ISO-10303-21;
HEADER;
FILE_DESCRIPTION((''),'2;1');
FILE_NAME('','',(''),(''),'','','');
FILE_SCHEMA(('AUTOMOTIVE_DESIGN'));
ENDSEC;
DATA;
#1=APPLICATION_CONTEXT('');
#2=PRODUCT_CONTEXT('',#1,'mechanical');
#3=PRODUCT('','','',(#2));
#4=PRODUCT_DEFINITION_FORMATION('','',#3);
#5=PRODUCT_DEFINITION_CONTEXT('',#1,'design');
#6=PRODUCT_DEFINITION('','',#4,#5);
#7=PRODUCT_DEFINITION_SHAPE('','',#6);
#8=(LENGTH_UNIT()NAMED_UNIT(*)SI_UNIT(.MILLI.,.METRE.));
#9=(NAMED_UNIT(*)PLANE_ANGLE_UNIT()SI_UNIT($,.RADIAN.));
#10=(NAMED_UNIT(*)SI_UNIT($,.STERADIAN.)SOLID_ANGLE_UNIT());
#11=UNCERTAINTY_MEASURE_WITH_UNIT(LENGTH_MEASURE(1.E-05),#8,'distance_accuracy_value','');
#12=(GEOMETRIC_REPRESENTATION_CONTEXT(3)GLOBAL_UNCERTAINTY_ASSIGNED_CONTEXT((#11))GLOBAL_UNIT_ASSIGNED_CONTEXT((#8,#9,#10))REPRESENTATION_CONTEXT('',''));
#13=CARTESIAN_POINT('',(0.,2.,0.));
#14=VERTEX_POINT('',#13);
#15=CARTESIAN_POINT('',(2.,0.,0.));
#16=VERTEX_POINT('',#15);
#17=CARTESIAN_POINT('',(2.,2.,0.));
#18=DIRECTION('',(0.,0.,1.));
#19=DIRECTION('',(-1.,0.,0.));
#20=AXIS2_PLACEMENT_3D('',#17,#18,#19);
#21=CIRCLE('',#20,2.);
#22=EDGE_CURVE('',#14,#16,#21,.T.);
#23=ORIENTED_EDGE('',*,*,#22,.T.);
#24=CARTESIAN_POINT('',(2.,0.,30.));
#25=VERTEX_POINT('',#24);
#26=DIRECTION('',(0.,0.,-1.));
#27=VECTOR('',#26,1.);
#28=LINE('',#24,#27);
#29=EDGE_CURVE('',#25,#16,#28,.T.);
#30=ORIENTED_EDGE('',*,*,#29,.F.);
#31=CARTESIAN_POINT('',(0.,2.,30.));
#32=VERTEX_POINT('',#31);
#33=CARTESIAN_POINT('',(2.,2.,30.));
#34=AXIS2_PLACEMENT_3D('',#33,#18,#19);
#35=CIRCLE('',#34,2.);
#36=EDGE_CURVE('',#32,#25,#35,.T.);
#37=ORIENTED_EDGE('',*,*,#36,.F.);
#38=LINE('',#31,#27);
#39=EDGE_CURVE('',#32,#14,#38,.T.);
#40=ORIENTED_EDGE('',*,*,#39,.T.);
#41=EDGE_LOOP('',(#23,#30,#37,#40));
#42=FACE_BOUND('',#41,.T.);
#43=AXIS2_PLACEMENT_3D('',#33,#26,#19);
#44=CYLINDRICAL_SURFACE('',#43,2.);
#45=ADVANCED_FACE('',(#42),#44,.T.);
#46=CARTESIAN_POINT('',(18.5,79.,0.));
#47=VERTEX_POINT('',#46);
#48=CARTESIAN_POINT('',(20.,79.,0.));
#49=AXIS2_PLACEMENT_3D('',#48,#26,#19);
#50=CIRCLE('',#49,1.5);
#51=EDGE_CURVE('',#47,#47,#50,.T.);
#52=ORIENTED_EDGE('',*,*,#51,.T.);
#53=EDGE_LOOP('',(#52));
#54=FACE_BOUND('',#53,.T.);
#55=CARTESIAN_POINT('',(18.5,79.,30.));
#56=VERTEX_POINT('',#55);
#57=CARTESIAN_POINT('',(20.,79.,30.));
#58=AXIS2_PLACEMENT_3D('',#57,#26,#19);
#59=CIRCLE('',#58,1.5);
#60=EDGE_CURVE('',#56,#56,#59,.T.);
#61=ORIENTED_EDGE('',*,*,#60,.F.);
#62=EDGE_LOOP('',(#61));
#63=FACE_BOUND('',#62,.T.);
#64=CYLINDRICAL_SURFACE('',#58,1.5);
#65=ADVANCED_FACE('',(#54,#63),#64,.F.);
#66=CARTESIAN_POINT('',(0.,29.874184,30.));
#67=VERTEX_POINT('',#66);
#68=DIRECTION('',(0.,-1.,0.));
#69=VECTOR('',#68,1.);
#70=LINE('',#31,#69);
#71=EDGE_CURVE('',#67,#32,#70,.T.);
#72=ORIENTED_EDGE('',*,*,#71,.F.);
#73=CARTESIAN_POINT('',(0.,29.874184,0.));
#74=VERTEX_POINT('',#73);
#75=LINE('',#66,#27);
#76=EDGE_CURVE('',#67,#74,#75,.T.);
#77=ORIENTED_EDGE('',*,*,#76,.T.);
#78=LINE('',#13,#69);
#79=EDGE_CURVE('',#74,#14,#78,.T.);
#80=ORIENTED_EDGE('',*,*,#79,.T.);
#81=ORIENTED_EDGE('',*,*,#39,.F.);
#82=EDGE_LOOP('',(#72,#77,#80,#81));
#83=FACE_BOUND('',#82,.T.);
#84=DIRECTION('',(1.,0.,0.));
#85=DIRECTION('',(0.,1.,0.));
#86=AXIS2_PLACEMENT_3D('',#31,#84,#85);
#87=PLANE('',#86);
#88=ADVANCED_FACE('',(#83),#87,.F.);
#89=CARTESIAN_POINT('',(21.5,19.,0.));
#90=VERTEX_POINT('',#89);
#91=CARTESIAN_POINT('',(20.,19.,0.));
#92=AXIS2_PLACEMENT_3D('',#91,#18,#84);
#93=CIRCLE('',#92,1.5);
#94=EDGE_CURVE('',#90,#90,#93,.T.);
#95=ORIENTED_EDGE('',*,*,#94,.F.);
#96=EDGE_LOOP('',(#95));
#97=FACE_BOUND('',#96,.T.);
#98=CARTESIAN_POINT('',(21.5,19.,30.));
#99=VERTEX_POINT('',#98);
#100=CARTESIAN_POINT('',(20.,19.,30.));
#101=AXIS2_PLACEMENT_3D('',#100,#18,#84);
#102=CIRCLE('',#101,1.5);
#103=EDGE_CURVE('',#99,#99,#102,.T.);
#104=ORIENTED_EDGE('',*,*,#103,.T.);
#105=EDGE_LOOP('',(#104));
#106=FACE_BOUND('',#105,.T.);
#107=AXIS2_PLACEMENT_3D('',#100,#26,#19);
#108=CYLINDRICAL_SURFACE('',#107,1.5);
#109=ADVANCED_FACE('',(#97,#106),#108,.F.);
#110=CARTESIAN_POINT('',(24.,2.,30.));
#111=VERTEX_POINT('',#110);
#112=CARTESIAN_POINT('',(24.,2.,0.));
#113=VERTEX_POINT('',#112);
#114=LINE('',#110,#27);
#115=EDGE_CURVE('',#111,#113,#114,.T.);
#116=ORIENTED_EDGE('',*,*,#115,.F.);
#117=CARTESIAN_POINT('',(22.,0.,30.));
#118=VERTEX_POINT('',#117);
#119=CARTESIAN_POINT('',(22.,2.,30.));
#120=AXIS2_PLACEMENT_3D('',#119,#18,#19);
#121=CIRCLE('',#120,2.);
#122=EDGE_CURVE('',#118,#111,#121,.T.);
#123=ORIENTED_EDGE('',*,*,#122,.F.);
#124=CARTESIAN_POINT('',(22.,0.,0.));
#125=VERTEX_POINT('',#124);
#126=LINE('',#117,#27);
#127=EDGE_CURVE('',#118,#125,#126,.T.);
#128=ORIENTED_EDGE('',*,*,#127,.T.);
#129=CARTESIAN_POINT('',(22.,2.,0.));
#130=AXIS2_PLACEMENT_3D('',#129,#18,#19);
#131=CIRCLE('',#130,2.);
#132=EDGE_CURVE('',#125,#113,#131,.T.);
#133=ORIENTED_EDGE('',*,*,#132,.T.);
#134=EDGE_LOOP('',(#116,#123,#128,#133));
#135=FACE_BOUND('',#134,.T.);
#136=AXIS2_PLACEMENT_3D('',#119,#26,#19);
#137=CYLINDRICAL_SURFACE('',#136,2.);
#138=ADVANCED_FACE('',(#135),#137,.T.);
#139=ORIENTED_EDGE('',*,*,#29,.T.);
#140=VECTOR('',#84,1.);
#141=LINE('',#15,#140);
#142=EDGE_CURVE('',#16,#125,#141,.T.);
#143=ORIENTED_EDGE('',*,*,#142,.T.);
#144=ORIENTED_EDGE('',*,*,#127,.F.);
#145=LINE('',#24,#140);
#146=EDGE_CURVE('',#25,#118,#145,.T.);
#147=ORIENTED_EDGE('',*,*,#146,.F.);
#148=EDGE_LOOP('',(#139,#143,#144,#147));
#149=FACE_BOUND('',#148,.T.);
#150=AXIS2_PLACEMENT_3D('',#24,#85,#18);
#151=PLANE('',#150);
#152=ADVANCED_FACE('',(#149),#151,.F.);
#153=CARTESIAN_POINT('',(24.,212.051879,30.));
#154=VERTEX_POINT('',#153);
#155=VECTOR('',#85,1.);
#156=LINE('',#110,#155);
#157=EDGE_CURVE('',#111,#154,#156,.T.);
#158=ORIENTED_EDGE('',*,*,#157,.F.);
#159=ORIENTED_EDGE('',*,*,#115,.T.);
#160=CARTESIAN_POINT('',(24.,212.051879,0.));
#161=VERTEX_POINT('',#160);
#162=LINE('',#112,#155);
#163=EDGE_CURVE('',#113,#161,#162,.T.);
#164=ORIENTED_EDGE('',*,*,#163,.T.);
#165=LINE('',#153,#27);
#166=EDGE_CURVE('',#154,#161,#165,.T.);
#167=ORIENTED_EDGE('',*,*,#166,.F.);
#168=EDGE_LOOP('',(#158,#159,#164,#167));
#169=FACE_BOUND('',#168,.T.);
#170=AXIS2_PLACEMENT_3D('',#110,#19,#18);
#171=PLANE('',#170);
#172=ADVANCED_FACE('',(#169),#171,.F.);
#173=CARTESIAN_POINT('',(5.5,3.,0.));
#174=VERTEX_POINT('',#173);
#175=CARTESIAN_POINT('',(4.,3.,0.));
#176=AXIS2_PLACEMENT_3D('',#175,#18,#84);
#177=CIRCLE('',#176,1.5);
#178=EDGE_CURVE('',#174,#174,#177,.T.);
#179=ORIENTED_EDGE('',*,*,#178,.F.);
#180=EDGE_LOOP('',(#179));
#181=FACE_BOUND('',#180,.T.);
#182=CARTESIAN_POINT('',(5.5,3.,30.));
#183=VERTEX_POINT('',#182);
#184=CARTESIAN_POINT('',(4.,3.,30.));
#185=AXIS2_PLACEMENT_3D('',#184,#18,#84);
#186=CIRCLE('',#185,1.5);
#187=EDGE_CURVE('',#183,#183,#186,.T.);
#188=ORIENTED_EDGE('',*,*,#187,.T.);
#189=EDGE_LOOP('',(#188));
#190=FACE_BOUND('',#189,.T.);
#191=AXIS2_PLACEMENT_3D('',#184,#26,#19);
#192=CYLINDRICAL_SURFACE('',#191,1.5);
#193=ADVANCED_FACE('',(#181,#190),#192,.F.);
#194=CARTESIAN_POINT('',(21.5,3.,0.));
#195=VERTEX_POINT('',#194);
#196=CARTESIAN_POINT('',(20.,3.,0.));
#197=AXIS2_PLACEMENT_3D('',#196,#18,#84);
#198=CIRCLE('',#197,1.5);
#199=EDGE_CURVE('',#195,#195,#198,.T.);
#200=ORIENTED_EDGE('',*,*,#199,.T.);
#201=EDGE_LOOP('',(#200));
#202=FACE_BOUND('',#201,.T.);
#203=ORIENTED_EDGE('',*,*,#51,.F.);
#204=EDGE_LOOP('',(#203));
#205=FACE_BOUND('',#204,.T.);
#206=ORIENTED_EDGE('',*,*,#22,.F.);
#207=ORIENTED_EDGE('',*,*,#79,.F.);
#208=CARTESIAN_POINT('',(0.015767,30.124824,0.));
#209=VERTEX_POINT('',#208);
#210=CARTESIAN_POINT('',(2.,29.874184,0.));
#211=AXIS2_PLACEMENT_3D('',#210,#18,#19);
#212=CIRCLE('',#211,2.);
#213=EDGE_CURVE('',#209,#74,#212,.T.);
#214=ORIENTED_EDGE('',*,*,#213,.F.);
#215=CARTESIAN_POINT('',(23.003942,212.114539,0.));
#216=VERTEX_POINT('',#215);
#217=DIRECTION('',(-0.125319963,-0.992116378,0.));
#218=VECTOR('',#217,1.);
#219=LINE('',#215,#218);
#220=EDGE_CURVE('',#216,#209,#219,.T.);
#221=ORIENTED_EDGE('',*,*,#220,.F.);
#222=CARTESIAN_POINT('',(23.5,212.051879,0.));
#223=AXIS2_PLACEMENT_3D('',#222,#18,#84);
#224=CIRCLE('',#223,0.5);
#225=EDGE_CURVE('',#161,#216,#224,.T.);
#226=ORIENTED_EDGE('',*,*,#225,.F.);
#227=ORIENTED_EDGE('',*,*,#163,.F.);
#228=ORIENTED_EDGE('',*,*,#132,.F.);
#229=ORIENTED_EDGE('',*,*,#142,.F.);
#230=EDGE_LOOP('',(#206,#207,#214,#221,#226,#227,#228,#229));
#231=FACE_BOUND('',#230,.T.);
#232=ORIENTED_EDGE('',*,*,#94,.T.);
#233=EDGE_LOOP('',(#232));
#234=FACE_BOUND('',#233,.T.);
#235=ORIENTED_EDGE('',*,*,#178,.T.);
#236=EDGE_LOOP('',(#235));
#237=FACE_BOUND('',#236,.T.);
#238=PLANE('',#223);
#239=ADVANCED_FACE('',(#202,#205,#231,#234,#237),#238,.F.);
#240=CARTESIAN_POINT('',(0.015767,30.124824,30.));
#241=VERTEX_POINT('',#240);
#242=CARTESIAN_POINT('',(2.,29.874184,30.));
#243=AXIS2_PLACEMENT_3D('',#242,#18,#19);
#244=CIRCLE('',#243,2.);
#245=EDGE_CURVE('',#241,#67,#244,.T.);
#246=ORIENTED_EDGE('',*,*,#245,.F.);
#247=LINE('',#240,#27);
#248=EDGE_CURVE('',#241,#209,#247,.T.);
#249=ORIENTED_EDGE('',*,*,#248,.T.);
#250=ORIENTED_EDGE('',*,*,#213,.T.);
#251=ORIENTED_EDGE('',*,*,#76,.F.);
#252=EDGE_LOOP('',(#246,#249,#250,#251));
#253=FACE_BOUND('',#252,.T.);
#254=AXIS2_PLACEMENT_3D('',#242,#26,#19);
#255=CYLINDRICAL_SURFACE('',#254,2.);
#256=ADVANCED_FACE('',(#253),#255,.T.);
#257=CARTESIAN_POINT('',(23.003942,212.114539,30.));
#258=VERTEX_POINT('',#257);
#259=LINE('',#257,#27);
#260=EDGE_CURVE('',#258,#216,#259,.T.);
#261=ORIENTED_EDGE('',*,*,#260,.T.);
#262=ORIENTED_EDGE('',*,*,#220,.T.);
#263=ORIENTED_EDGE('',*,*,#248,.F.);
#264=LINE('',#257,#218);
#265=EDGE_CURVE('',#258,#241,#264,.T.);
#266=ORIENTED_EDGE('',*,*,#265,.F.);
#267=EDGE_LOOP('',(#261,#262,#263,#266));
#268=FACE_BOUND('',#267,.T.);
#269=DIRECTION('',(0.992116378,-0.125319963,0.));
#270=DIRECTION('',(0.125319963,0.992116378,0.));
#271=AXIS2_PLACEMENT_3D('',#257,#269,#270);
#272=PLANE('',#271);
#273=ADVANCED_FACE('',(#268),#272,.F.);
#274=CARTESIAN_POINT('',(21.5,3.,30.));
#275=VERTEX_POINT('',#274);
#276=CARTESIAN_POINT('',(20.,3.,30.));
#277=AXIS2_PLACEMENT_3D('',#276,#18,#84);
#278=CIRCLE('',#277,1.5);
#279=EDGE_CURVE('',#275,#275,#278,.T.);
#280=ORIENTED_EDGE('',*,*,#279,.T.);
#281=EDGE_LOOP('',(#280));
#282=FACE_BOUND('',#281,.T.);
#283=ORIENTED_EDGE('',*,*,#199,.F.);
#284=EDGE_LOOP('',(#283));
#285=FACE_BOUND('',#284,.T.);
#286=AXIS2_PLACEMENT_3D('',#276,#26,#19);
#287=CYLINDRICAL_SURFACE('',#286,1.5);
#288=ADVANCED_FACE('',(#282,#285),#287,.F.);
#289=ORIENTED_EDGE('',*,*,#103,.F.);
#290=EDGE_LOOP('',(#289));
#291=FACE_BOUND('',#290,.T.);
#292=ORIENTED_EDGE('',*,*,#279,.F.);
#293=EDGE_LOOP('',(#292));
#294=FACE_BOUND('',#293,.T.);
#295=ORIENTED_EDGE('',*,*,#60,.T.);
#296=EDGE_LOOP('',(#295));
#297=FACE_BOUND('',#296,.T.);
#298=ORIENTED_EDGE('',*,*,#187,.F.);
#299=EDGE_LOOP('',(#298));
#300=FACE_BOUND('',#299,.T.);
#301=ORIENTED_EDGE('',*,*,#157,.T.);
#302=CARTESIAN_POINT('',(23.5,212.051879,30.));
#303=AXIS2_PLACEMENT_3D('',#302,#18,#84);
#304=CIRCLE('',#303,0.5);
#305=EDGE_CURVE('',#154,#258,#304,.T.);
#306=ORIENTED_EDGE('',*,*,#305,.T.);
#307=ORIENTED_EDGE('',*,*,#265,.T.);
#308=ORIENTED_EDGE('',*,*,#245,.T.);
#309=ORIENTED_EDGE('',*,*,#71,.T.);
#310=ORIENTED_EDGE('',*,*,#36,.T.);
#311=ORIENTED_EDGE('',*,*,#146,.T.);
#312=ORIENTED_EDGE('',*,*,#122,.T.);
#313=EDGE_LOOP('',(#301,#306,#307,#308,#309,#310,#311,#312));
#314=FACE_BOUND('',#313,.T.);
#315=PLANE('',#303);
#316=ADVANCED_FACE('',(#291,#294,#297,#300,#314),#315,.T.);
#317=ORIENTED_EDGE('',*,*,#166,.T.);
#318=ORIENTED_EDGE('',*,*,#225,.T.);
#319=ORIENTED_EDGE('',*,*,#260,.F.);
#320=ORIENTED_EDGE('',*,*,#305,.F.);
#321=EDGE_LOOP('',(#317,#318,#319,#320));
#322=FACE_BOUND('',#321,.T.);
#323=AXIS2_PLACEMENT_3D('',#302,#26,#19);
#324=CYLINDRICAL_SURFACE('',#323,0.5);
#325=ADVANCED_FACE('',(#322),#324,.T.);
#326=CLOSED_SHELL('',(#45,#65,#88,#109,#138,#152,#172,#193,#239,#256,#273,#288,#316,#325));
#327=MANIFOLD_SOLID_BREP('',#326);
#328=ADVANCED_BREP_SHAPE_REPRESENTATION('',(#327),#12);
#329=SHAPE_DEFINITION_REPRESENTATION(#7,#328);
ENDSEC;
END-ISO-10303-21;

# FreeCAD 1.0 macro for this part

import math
import FreeCAD as App
import Part
import Sketcher
from FreeCAD import Vector
Q = App.Units.Quantity

doc = App.newDocument("Part")
body = doc.addObject("PartDesign::Body", "Body")

# Sketch on XY plane
sketch1 = doc.addObject("Sketcher::SketchObject", "Sketch")
body.addObject(sketch1)
sketch1.AttachmentSupport = (doc.XY_Plane, [""])
sketch1.MapMode = "FlatFace"
sketch1.addGeometry(Part.LineSegment(Vector(23, 212.11, 0), Vector(0.02, 30.12, 0)), False)
sketch1.addGeometry(Part.ArcOfCircle(Part.Circle(Vector(2, 29.87, 0), Vector(0, 0, 1), 2), math.radians(172.8), math.radians(180)), False)
sketch1.addGeometry(Part.LineSegment(Vector(0, 29.87, 0), Vector(0, 2, 0)), False)
sketch1.addGeometry(Part.ArcOfCircle(Part.Circle(Vector(2, 2, 0), Vector(0, 0, 1), 2), math.radians(-180), math.radians(-90)), False)
sketch1.addGeometry(Part.LineSegment(Vector(2, 0, 0), Vector(22, 0, 0)), False)
sketch1.addGeometry(Part.ArcOfCircle(Part.Circle(Vector(22, 2, 0), Vector(0, 0, 1), 2), math.radians(-90), math.radians(0)), False)
sketch1.addGeometry(Part.LineSegment(Vector(24, 2, 0), Vector(24, 212.05, 0)), False)
sketch1.addGeometry(Part.ArcOfCircle(Part.Circle(Vector(23.5, 212.05, 0), Vector(0, 0, 1), 0.5), math.radians(0), math.radians(173)), False)
sketch1.addGeometry(Part.Circle(Vector(4, 3, 0), Vector(0, 0, 1), 1.5), False)
sketch1.addGeometry(Part.Circle(Vector(20, 3, 0), Vector(0, 0, 1), 1.5), False)
sketch1.addGeometry(Part.Circle(Vector(20, 19, 0), Vector(0, 0, 1), 1.5), False)
sketch1.addConstraint(Sketcher.Constraint("Tangent", 0, 2, 1, 1))
sketch1.addConstraint(Sketcher.Constraint("Tangent", 1, 2, 2, 1))
sketch1.addConstraint(Sketcher.Constraint("Tangent", 2, 2, 3, 1))
sketch1.addConstraint(Sketcher.Constraint("Tangent", 3, 2, 4, 1))
sketch1.addConstraint(Sketcher.Constraint("Tangent", 4, 2, 5, 1))
sketch1.addConstraint(Sketcher.Constraint("Tangent", 5, 2, 6, 1))
sketch1.addConstraint(Sketcher.Constraint("Tangent", 6, 2, 7, 1))
sketch1.addConstraint(Sketcher.Constraint("Tangent", 7, 2, 0, 1))
sketch1.addConstraint(Sketcher.Constraint("Vertical", 2))
sketch1.addConstraint(Sketcher.Constraint("Horizontal", 4))
sketch1.addConstraint(Sketcher.Constraint("Vertical", 6))
sketch1.addConstraint(Sketcher.Constraint("Equal", 1, 3))
sketch1.addConstraint(Sketcher.Constraint("Equal", 3, 5))
sketch1.addConstraint(Sketcher.Constraint("Equal", 8, 9))
sketch1.addConstraint(Sketcher.Constraint("Equal", 9, 10))
sketch1.addConstraint(Sketcher.Constraint("PointOnObject", 1, 2, -2))
sketch1.addConstraint(Sketcher.Constraint("PointOnObject", 3, 2, -1))
sketch1.addConstraint(Sketcher.Constraint("Horizontal", 8, 3, 9, 3))
sketch1.addConstraint(Sketcher.Constraint("Vertical", 9, 3, 10, 3))
sketch1.addConstraint(Sketcher.Constraint("Diameter", 8, Q("3 mm")))
sketch1.addConstraint(Sketcher.Constraint("Radius", 1, Q("2 mm")))
sketch1.addConstraint(Sketcher.Constraint("Radius", 7, Q("0.5 mm")))
sketch1.addConstraint(Sketcher.Constraint("DistanceX", 4, 1, 4, 2, Q("20 mm")))
sketch1.addConstraint(Sketcher.Constraint("DistanceX", -1, 1, 8, 3, Q("4 mm")))
sketch1.addConstraint(Sketcher.Constraint("DistanceY", -1, 1, 8, 3, Q("3 mm")))
sketch1.addConstraint(Sketcher.Constraint("DistanceX", -1, 1, 9, 3, Q("20 mm")))
sketch1.addConstraint(Sketcher.Constraint("DistanceY", -1, 1, 10, 3, Q("19 mm")))
sketch1.addConstraint(Sketcher.Constraint("DistanceY", 6, 1, 6, 2, Q("210.051879 mm")))
sketch1.addConstraint(Sketcher.Constraint("DistanceY", 2, 2, 2, 1, Q("27.874184 mm")))
pad1 = doc.addObject("PartDesign::Pad", "Pad")
body.addObject(pad1)
pad1.Profile = sketch1
pad1.Length = 30

# Sketch on XY plane
sketch2 = doc.addObject("Sketcher::SketchObject", "Sketch001")
body.addObject(sketch2)
sketch2.AttachmentSupport = (doc.XY_Plane, [""])
sketch2.MapMode = "FlatFace"
sketch2.addGeometry(Part.Circle(Vector(20, 79, 0), Vector(0, 0, 1), 1.5), False)
sketch2.addConstraint(Sketcher.Constraint("Diameter", 0, Q("3 mm")))
sketch2.addConstraint(Sketcher.Constraint("DistanceX", -1, 1, 0, 3, Q("20 mm")))
sketch2.addConstraint(Sketcher.Constraint("DistanceY", -1, 1, 0, 3, Q("79 mm")))
pocket1 = doc.addObject("PartDesign::Pocket", "Pocket")
body.addObject(pocket1)
pocket1.Profile = sketch2
pocket1.Type = "ThroughAll"
pocket1.Reversed = True

doc.recompute()
